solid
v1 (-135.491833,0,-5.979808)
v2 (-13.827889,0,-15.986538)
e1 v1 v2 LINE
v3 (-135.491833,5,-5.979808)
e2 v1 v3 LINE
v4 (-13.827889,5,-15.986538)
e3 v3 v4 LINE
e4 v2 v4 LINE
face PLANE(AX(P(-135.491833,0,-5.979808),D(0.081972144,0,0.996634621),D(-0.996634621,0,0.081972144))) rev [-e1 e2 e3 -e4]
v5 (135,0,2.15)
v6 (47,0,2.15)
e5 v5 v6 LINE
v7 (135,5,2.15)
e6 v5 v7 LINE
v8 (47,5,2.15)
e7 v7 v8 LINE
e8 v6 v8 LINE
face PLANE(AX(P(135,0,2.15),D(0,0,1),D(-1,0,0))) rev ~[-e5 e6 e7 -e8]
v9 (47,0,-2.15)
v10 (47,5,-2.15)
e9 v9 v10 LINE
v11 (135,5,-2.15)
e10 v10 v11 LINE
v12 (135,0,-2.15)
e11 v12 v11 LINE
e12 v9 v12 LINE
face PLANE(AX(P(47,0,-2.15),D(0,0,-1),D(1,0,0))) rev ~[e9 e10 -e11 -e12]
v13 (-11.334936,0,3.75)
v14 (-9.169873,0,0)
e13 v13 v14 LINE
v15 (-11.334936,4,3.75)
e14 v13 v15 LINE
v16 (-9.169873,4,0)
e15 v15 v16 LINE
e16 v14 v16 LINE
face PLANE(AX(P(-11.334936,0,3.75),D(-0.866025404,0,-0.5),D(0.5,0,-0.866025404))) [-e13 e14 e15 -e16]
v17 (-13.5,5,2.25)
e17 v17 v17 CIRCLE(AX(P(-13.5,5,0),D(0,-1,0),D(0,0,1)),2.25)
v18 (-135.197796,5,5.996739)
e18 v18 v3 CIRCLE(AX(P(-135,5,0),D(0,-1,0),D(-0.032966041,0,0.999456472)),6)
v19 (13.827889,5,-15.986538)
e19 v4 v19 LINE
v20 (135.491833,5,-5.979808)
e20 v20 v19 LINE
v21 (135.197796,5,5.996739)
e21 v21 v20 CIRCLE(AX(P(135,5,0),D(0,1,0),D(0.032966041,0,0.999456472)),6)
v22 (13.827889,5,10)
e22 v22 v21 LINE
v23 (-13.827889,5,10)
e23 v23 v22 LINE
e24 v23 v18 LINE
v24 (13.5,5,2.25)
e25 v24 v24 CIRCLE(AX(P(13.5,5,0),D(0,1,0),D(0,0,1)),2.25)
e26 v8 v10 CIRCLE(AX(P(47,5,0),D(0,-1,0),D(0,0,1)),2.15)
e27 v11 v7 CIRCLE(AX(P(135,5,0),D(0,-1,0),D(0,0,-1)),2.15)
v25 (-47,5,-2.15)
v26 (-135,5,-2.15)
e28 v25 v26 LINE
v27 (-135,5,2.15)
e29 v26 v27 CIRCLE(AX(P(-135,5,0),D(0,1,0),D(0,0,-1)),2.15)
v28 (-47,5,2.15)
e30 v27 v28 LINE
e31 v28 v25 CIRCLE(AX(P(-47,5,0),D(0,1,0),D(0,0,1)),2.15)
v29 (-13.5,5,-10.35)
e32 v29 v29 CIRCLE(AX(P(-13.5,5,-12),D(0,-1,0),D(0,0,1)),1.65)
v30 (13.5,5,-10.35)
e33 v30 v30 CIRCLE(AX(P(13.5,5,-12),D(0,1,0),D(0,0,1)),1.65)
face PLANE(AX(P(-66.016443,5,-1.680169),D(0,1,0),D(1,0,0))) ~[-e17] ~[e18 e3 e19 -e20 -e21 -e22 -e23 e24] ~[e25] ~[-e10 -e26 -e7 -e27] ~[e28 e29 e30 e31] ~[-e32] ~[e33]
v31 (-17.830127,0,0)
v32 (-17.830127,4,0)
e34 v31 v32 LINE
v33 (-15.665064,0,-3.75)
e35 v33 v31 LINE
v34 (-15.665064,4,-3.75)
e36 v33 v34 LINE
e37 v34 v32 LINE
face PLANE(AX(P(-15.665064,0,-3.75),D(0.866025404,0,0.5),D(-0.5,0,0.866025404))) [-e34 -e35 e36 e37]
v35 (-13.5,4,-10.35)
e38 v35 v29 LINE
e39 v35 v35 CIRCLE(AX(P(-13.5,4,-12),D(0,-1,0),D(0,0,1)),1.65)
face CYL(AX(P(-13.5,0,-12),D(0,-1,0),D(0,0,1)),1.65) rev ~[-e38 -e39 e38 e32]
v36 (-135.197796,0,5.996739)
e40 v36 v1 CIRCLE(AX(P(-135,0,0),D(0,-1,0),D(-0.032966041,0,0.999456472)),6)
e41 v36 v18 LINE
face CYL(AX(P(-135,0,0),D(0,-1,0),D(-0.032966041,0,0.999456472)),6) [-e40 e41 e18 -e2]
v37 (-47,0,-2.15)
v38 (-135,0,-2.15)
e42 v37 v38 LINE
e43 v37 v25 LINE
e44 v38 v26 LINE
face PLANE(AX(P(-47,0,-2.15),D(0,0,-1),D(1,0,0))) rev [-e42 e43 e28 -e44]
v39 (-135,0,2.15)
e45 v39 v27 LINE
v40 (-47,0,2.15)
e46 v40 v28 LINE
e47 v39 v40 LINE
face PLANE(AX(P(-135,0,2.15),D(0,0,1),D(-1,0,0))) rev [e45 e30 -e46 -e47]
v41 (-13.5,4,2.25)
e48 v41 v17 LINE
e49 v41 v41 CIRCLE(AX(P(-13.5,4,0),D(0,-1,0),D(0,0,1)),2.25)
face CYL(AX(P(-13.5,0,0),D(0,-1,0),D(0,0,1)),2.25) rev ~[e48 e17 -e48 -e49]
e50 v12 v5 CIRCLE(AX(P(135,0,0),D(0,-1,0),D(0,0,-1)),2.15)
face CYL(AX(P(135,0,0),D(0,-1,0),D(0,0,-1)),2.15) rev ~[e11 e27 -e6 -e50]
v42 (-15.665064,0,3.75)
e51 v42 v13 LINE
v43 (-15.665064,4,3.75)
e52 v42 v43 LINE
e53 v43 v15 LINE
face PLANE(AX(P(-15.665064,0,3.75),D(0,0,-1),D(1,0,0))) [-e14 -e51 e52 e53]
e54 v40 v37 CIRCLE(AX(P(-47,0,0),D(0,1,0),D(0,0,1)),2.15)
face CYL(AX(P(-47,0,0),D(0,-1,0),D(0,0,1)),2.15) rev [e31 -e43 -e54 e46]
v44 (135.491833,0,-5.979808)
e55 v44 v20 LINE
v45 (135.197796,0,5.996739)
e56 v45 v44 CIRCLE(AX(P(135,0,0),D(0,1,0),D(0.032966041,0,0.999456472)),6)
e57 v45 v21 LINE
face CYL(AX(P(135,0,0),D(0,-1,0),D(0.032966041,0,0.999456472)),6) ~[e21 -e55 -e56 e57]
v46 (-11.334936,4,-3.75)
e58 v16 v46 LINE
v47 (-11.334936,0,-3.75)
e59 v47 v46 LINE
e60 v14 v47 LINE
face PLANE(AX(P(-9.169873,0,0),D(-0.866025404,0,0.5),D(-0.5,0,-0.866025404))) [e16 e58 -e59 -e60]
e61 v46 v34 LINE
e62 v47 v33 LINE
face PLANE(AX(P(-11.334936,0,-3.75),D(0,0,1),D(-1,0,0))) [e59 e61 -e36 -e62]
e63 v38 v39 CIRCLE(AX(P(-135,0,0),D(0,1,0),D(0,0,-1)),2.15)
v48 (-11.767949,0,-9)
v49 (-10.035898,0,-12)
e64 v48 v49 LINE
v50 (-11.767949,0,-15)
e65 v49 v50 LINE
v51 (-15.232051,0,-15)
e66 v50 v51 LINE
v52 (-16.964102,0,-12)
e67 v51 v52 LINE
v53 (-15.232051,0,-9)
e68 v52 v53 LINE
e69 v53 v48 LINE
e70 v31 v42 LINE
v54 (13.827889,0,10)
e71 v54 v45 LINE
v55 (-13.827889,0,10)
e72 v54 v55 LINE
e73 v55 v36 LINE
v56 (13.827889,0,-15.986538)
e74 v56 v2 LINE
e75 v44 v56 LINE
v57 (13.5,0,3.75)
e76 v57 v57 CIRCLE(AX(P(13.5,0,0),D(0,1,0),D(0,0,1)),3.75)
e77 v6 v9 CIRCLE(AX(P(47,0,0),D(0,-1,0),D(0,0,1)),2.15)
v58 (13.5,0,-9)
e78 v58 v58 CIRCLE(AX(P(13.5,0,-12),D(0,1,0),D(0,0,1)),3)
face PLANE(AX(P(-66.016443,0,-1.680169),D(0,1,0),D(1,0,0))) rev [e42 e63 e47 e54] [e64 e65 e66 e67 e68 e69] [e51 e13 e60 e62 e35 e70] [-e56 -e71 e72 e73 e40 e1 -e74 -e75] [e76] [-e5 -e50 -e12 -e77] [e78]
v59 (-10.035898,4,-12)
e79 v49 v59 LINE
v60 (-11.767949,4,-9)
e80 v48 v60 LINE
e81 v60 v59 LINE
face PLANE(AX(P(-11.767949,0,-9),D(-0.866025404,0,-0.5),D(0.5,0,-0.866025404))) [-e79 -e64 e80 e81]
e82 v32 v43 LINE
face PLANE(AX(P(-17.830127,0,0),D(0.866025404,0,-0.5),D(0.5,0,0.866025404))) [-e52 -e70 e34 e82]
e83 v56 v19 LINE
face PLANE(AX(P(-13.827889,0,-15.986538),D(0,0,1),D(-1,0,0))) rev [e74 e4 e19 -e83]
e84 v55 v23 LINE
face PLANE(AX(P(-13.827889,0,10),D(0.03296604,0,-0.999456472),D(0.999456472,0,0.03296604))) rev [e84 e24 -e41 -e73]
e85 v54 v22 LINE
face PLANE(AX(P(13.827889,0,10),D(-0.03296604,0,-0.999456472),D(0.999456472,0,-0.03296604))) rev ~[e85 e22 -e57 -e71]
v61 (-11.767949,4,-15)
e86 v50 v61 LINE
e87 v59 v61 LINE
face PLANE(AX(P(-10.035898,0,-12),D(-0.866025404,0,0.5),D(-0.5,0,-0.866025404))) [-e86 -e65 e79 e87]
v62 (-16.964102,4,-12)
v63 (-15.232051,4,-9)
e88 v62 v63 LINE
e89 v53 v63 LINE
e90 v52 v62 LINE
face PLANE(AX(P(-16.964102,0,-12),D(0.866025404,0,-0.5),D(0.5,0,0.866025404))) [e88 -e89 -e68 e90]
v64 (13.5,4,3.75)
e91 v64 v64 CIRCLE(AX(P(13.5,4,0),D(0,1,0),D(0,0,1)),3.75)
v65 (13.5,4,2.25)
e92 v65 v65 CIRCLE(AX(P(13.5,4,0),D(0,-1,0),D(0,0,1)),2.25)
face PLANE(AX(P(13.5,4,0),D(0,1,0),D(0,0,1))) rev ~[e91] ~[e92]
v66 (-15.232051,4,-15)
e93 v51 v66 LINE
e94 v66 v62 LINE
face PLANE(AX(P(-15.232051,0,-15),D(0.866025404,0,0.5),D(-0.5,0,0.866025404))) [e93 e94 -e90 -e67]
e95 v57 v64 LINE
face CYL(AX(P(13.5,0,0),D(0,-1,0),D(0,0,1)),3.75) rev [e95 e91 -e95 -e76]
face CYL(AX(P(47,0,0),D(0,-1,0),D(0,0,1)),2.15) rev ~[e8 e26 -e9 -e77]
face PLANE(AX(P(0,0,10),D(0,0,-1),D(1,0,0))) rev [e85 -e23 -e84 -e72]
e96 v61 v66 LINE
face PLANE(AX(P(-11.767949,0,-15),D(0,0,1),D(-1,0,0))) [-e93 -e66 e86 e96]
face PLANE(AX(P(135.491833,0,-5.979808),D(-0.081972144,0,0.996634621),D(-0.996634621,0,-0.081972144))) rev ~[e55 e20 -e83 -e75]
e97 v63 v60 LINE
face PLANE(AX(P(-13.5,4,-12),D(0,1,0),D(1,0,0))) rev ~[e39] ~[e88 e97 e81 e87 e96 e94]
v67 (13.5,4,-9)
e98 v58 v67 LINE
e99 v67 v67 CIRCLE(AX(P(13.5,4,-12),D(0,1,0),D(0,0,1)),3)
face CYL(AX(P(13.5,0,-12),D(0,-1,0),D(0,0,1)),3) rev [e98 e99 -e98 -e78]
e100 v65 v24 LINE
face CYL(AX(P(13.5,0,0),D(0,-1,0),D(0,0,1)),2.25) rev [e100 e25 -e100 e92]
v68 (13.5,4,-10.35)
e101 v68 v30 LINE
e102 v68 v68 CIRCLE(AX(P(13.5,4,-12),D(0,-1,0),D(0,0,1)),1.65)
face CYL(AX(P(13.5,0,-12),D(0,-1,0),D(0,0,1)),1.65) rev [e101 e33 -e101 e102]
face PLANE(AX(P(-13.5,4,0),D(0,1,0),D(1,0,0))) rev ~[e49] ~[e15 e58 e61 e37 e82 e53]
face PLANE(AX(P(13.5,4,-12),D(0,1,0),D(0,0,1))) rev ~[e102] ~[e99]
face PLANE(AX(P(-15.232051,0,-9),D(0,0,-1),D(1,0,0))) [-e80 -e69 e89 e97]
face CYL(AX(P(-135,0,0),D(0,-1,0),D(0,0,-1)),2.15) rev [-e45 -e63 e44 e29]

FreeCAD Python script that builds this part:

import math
import FreeCAD as App
import Part
import Sketcher

V = App.Vector
Q = App.Units.Quantity


def add_polygon(sketch, points):
    """Adds a closed chain of lines whose ends are joined by coincident constraints."""
    first, n = sketch.GeometryCount, len(points)
    for a, b in zip(points, points[1:] + points[:1]):
        sketch.addGeometry(Part.LineSegment(App.Vector(*a, 0), App.Vector(*b, 0)), False)
    for i in range(n):
        sketch.addConstraint(Sketcher.Constraint("Coincident", first + i, 2, first + (i + 1) % n, 1))

doc = App.newDocument("Part")
params = doc.addObject("Spreadsheet::Sheet", "Params")
for row, (alias, value) in enumerate([
    ("sketch1_radius", "6 mm"),
    ("sketch1_diameter", "4.5 mm"),
    ("sketch1_diameter2", "3.3 mm"),
    ("sketch1_width", "88 mm"),
    ("sketch1_radius2", "2.15 mm"),
    ("pad1_length", "5 mm"),
    ("sketch2_diameter", "6 mm"),
    ("sketch2_diameter2", "7.5 mm"),
    ("pocket1_length", "4 mm"),
], start=1):
    params.set(f"A{row}", alias)
    params.set(f"B{row}", "=" + value)
    params.setAlias(f"B{row}", alias)

body = doc.addObject("PartDesign::Body", "Body")

# Sketch on XZ plane
sketch1 = doc.addObject("Sketcher::SketchObject", "Sketch")
body.addObject(sketch1)
sketch1.AttachmentSupport = (doc.XZ_Plane, [""])
sketch1.MapMode = "FlatFace"
sketch1.addGeometry([
    Part.LineSegment(V(0, -15.986538, 0), V(0, 10, 0)),  # 0
    Part.LineSegment(V(0, 10, 0), V(13.827889, 10, 0)),  # 1
    Part.LineSegment(V(13.827889, 10, 0), V(135.197796, 5.996739, 0)),  # 2
    Part.ArcOfCircle(Part.Circle(V(135, 0, 0), V(0, 0, 1), 6), math.radians(-85.298066), math.radians(88.110843)),  # 3
    Part.LineSegment(V(135.491833, -5.979808, 0), V(13.827889, -15.986538, 0)),  # 4
    Part.LineSegment(V(13.827889, -15.986538, 0), V(0, -15.986538, 0)),  # 5
    Part.Circle(V(13.5, 0, 0), V(0, 0, 1), 2.25),  # 6
    Part.LineSegment(V(135, 2.15, 0), V(47, 2.15, 0)),  # 7
    Part.ArcOfCircle(Part.Circle(V(47, 0, 0), V(0, 0, 1), 2.15), math.radians(90), math.radians(270)),  # 8
    Part.LineSegment(V(47, -2.15, 0), V(135, -2.15, 0)),  # 9
    Part.ArcOfCircle(Part.Circle(V(135, 0, 0), V(0, 0, 1), 2.15), math.radians(-90), math.radians(90)),  # 10
    Part.Circle(V(13.5, -12, 0), V(0, 0, 1), 1.65),  # 11
], False)
sketch1.addConstraint([
    Sketcher.Constraint("Coincident", 0, 2, 1, 1),
    Sketcher.Constraint("Coincident", 1, 2, 2, 1),
    Sketcher.Constraint("Tangent", 2, 2, 3, 2),
    Sketcher.Constraint("Tangent", 3, 1, 4, 1),
    Sketcher.Constraint("Coincident", 4, 2, 5, 1),
    Sketcher.Constraint("Coincident", 5, 2, 0, 1),
    Sketcher.Constraint("Tangent", 7, 2, 8, 1),
    Sketcher.Constraint("Tangent", 8, 2, 9, 1),
    Sketcher.Constraint("Tangent", 9, 2, 10, 1),
    Sketcher.Constraint("Tangent", 10, 2, 7, 1),
    Sketcher.Constraint("Vertical", 0),
    Sketcher.Constraint("Horizontal", 1),
    Sketcher.Constraint("Horizontal", 5),
    Sketcher.Constraint("Horizontal", 7),
    Sketcher.Constraint("Horizontal", 9),
    Sketcher.Constraint("Coincident", 10, 3, 3, 3),
    Sketcher.Constraint("PointOnObject", 3, 3, -1),
    Sketcher.Constraint("PointOnObject", 6, 3, -1),
    Sketcher.Constraint("PointOnObject", 0, 2, -2),
    Sketcher.Constraint("Vertical", 6, 3, 11, 3),
    Sketcher.Constraint("Vertical", 1, 2, 4, 2),
    Sketcher.Constraint("Radius", 3, Q("6 mm")),
    Sketcher.Constraint("Diameter", 6, Q("4.5 mm")),
    Sketcher.Constraint("Diameter", 11, Q("3.3 mm")),
    Sketcher.Constraint("DistanceX", 7, 2, 7, 1, Q("88 mm")),
    Sketcher.Constraint("Radius", 8, Q("2.15 mm")),
    Sketcher.Constraint("DistanceX", -1, 1, 3, 3, Q("135 mm")),
    Sketcher.Constraint("DistanceY", 11, 3, -1, 1, Q("12 mm")),
    Sketcher.Constraint("DistanceY", -1, 1, 0, 2, Q("10 mm")),
    Sketcher.Constraint("DistanceX", -1, 1, 6, 3, Q("13.5 mm")),
    Sketcher.Constraint("DistanceX", 1, 1, 1, 2, Q("13.827889 mm")),
    Sketcher.Constraint("DistanceY", 0, 1, 0, 2, Q("25.986538 mm")),
])
sketch1.setExpression("Constraints[21]", "Params.sketch1_radius")
sketch1.setExpression("Constraints[22]", "Params.sketch1_diameter")
sketch1.setExpression("Constraints[23]", "Params.sketch1_diameter2")
sketch1.setExpression("Constraints[24]", "Params.sketch1_width")
sketch1.setExpression("Constraints[25]", "Params.sketch1_radius2")
pad1 = doc.addObject("PartDesign::Pad", "Pad")
body.addObject(pad1)
pad1.Profile = sketch1
pad1.setExpression("Length", "Params.pad1_length")
pad1.Reversed = True
body2 = doc.addObject("PartDesign::Body", "Body001")
doc.recompute()

body2.BaseFeature = body
doc.recompute()

mirroring = doc.addObject("Part::Mirroring", "Mirroring")
mirroring.Source = body
mirroring.Base = V(0, 0, 0)
mirroring.Normal = V(1, 0, 0)
body3 = doc.addObject("PartDesign::Body", "Body002")
body3.BaseFeature = mirroring
boolean = doc.addObject("PartDesign::Boolean", "Boolean")
body2.addObject(boolean)
boolean.Type = "Fuse"
boolean.addObjects([body3])
doc.recompute()

# Sketch on XZ plane
sketch2 = doc.addObject("Sketcher::SketchObject", "Sketch001")
body2.addObject(sketch2)
sketch2.AttachmentSupport = (doc.getObject("XZ_Plane001"), [""])
sketch2.MapMode = "FlatFace"
sketch2.addGeometry(Part.Circle(V(13.5, 0, 0), V(0, 0, 1), 3.75), False)  # 0
sketch2.addGeometry(Part.Circle(V(13.5, -12, 0), V(0, 0, 1), 3), False)  # 1
add_polygon(sketch2, [(-9.169873, 0), (-11.334936, -3.75), (-15.665064, -3.75), (-17.830127, 0), (-15.665064, 3.75), (-11.334936, 3.75)])  # lines 2-7
add_polygon(sketch2, [(-10.035898, -12), (-11.767949, -15), (-15.232051, -15), (-16.964102, -12), (-15.232051, -9), (-11.767949, -9)])  # lines 8-13
sketch2.addConstraint([
    Sketcher.Constraint("Horizontal", 3),
    Sketcher.Constraint("Horizontal", 6),
    Sketcher.Constraint("Horizontal", 9),
    Sketcher.Constraint("Horizontal", 12),
    Sketcher.Constraint("Symmetric", 3, 2, 5, 2, -1),
    Sketcher.Constraint("PointOnObject", 0, 3, -1),
    Sketcher.Constraint("PointOnObject", 4, 2, -1),
    Sketcher.Constraint("PointOnObject", 7, 2, -1),
    Sketcher.Constraint("Parallel", 2, 5),
    Sketcher.Constraint("Parallel", 4, 7),
    Sketcher.Constraint("Parallel", 5, 8),
    Sketcher.Constraint("Parallel", 7, 10),
    Sketcher.Constraint("Parallel", 8, 11),
    Sketcher.Constraint("Parallel", 10, 13),
    Sketcher.Constraint("Horizontal", 1, 3, 10, 2),
    Sketcher.Constraint("Horizontal", 10, 2, 13, 2),
    Sketcher.Constraint("Vertical", 0, 3, 1, 3),
    Sketcher.Constraint("Vertical", 9, 2, 11, 2),
    Sketcher.Constraint("Diameter", 1, Q("6 mm")),
    Sketcher.Constraint("Diameter", 0, Q("7.5 mm")),
    Sketcher.Constraint("Angle", 2, Q("-120 deg")),
    Sketcher.Constraint("DistanceY", 1, 3, -1, 1, Q("12 mm")),
    Sketcher.Constraint("DistanceY", 8, 2, -1, 1, Q("15 mm")),
    Sketcher.Constraint("DistanceX", -1, 1, 0, 3, Q("13.5 mm")),
    Sketcher.Constraint("DistanceY", 3, 2, 5, 2, Q("7.5 mm")),
    Sketcher.Constraint("DistanceX", 9, 2, 9, 1, Q("3.464102 mm")),
    Sketcher.Constraint("DistanceX", 10, 2, -1, 1, Q("16.964102 mm")),
    Sketcher.Constraint("DistanceX", 3, 2, 3, 1, Q("4.330127 mm")),
    Sketcher.Constraint("DistanceX", 10, 2, 3, 2, Q("1.299038 mm")),
])
sketch2.setExpression("Constraints[30]", "Params.sketch2_diameter")
sketch2.setExpression("Constraints[31]", "Params.sketch2_diameter2")
pocket1 = doc.addObject("PartDesign::Pocket", "Pocket")
body2.addObject(pocket1)
pocket1.Profile = sketch2
pocket1.setExpression("Length", "Params.pocket1_length")
mirroring.Visibility = False

doc.recompute()
